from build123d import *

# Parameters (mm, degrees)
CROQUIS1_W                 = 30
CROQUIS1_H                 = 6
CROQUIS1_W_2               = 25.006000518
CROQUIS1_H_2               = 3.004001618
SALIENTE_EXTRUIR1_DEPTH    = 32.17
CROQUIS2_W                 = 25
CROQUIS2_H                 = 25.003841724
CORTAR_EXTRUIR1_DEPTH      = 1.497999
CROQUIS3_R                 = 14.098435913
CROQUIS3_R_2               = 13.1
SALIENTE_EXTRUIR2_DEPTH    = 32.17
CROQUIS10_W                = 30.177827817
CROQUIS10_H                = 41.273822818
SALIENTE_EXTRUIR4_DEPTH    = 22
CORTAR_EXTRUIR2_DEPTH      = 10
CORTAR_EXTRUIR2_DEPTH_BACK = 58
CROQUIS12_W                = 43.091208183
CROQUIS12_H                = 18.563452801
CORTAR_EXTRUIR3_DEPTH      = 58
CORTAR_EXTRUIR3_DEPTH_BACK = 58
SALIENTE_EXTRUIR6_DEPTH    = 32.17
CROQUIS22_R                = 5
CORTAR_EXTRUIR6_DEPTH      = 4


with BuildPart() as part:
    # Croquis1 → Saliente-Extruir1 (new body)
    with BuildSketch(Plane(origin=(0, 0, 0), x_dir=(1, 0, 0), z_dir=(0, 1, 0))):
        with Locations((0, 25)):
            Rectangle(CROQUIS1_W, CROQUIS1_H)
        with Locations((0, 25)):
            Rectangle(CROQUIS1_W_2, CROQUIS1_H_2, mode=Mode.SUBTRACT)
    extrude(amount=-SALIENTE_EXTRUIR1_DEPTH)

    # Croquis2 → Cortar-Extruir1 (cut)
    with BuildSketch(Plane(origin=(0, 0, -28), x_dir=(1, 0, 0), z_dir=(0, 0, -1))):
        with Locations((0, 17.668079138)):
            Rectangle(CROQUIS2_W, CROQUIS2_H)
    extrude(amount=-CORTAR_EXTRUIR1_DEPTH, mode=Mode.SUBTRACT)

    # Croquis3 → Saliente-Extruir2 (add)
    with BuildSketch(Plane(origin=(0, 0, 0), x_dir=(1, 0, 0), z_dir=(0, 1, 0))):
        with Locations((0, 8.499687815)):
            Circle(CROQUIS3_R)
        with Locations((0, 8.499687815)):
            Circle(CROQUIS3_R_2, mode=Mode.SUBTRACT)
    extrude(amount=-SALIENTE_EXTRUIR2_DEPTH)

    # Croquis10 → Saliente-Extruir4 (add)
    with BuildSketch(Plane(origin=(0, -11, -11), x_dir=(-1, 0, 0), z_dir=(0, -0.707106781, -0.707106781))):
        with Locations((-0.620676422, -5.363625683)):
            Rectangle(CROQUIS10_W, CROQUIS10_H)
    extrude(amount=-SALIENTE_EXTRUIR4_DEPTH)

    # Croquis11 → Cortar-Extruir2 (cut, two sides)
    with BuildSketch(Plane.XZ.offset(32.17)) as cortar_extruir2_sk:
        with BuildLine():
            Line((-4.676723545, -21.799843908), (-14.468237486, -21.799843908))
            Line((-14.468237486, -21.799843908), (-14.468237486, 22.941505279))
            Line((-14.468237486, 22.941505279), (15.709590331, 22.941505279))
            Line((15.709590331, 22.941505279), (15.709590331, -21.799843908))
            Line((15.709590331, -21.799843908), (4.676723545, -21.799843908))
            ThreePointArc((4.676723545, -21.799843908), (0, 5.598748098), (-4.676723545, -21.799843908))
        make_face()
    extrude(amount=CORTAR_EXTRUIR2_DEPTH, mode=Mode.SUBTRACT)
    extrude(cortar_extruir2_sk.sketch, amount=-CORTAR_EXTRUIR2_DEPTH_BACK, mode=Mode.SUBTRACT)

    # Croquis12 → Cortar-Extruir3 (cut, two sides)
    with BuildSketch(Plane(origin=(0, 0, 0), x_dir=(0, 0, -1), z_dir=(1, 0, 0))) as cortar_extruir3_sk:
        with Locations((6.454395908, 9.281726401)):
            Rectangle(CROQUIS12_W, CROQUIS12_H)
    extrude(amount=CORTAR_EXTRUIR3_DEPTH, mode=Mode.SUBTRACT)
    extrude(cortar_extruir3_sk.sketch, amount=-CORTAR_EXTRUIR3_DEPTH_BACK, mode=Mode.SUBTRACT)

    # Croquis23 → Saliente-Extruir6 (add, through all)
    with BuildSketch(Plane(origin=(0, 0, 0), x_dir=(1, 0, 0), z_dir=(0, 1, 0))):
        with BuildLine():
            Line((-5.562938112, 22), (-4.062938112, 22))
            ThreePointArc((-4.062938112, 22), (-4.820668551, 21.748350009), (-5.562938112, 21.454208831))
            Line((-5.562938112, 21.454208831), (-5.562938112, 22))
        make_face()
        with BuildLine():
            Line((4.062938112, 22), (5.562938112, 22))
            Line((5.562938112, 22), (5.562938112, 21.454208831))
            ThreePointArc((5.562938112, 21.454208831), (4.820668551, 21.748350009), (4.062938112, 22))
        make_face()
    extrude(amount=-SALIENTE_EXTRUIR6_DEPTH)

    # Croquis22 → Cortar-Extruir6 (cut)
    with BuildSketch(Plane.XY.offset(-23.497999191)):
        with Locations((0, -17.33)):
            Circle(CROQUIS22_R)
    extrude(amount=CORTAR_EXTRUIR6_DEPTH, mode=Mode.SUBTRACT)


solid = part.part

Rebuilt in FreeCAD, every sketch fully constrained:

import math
import FreeCAD as App
import Part
import Sketcher
from FreeCAD import Vector

doc = App.newDocument("Part")
body = doc.addObject("PartDesign::Body", "Body")

sketch1 = body.newObject("Sketcher::SketchObject", "Sketch")
sketch1.AttachmentSupport = (doc.getObject("XZ_Plane"), [""])
sketch1.MapMode = "FlatFace"
sketch1.addGeometry(Part.LineSegment(Vector(-15, -28, 0), Vector(-15, -22, 0)), False)
sketch1.addGeometry(Part.LineSegment(Vector(-15, -22, 0), Vector(15, -22, 0)), False)
sketch1.addGeometry(Part.LineSegment(Vector(15, -22, 0), Vector(15, -28, 0)), False)
sketch1.addGeometry(Part.LineSegment(Vector(15, -28, 0), Vector(-15, -28, 0)), False)
sketch1.addGeometry(Part.LineSegment(Vector(12.5, -23.5, 0), Vector(-12.5, -23.5, 0)), False)
sketch1.addGeometry(Part.LineSegment(Vector(-12.5, -23.5, 0), Vector(-12.5, -26.5, 0)), False)
sketch1.addGeometry(Part.LineSegment(Vector(-12.5, -26.5, 0), Vector(12.5, -26.5, 0)), False)
sketch1.addGeometry(Part.LineSegment(Vector(12.5, -26.5, 0), Vector(12.5, -23.5, 0)), False)
sketch1.addConstraint(Sketcher.Constraint("Coincident", 0, 2, 1, 1))
sketch1.addConstraint(Sketcher.Constraint("Coincident", 1, 2, 2, 1))
sketch1.addConstraint(Sketcher.Constraint("Coincident", 2, 2, 3, 1))
sketch1.addConstraint(Sketcher.Constraint("Coincident", 3, 2, 0, 1))
sketch1.addConstraint(Sketcher.Constraint("Coincident", 4, 2, 5, 1))
sketch1.addConstraint(Sketcher.Constraint("Coincident", 5, 2, 6, 1))
sketch1.addConstraint(Sketcher.Constraint("Coincident", 6, 2, 7, 1))
sketch1.addConstraint(Sketcher.Constraint("Coincident", 7, 2, 4, 1))
sketch1.addConstraint(Sketcher.Constraint("Vertical", 0))
sketch1.addConstraint(Sketcher.Constraint("Horizontal", 1))
sketch1.addConstraint(Sketcher.Constraint("Vertical", 2))
sketch1.addConstraint(Sketcher.Constraint("Horizontal", 3))
sketch1.addConstraint(Sketcher.Constraint("Horizontal", 4))
sketch1.addConstraint(Sketcher.Constraint("Vertical", 5))
sketch1.addConstraint(Sketcher.Constraint("Horizontal", 6))
sketch1.addConstraint(Sketcher.Constraint("Vertical", 7))
sketch1.addConstraint(Sketcher.Constraint("DistanceX", 1, 1, 1, 2, 30.0))
sketch1.addConstraint(Sketcher.Constraint("DistanceY", 0, 1, 0, 2, 6.0))
sketch1.addConstraint(Sketcher.Constraint("DistanceX", 0, 2, -1, 1, 15.0))
sketch1.addConstraint(Sketcher.Constraint("DistanceY", 0, 2, -1, 1, 22.0))
sketch1.addConstraint(Sketcher.Constraint("DistanceX", 4, 2, 4, 1, 25.006001))
sketch1.addConstraint(Sketcher.Constraint("DistanceY", 5, 2, 5, 1, 3.004002))
sketch1.addConstraint(Sketcher.Constraint("DistanceX", 4, 2, -1, 1, 12.503))
sketch1.addConstraint(Sketcher.Constraint("DistanceY", 4, 2, -1, 1, 23.497999))
pad1 = body.newObject("PartDesign::Pad", "Pad")
pad1.Profile = sketch1
pad1.Length = 32.17

sketch2 = body.newObject("Sketcher::SketchObject", "Sketch001")
sketch2.AttachmentSupport = (doc.getObject("XY_Plane"), [""])
sketch2.MapMode = "FlatFace"
sketch2.AttachmentOffset = App.Placement(Vector(0, 0, -28), App.Rotation())
sketch2.addGeometry(Part.LineSegment(Vector(-12, -30, 0), Vector(-12, -5, 0)), False)
sketch2.addGeometry(Part.LineSegment(Vector(-12, -5, 0), Vector(12, -5, 0)), False)
sketch2.addGeometry(Part.LineSegment(Vector(12, -5, 0), Vector(12, -30, 0)), False)
sketch2.addGeometry(Part.LineSegment(Vector(12, -30, 0), Vector(-12, -30, 0)), False)
sketch2.addConstraint(Sketcher.Constraint("Coincident", 0, 2, 1, 1))
sketch2.addConstraint(Sketcher.Constraint("Coincident", 1, 2, 2, 1))
sketch2.addConstraint(Sketcher.Constraint("Coincident", 2, 2, 3, 1))
sketch2.addConstraint(Sketcher.Constraint("Coincident", 3, 2, 0, 1))
sketch2.addConstraint(Sketcher.Constraint("Vertical", 0))
sketch2.addConstraint(Sketcher.Constraint("Horizontal", 1))
sketch2.addConstraint(Sketcher.Constraint("Vertical", 2))
sketch2.addConstraint(Sketcher.Constraint("Horizontal", 3))
sketch2.addConstraint(Sketcher.Constraint("DistanceX", 1, 1, 1, 2, 25.0))
sketch2.addConstraint(Sketcher.Constraint("DistanceX", 0, 2, -1, 1, 12.5))
sketch2.addConstraint(Sketcher.Constraint("DistanceY", 2, 2, -1, 1, 30.17))
sketch2.addConstraint(Sketcher.Constraint("DistanceY", 0, 1, 0, 2, 25.003842))
pocket1 = body.newObject("PartDesign::Pocket", "Pocket")
pocket1.Profile = sketch2
pocket1.Length = 1.497999
pocket1.Reversed = True

sketch3 = body.newObject("Sketcher::SketchObject", "Sketch002")
sketch3.AttachmentSupport = (doc.getObject("XZ_Plane"), [""])
sketch3.MapMode = "FlatFace"
sketch3.addGeometry(Part.Circle(Vector(0, -8, 0), Vector(0, 0, 1), 14), False)
sketch3.addGeometry(Part.Circle(Vector(0, -8, 0), Vector(0, 0, 1), 13), False)
sketch3.addConstraint(Sketcher.Constraint("Coincident", 1, 3, 0, 3))
sketch3.addConstraint(Sketcher.Constraint("PointOnObject", 0, 3, -2))
sketch3.addConstraint(Sketcher.Constraint("Diameter", 1, 26.2))
sketch3.addConstraint(Sketcher.Constraint("Diameter", 0, 28.196872))
sketch3.addConstraint(Sketcher.Constraint("DistanceY", 0, 3, -1, 1, 8.499688))
pad2 = body.newObject("PartDesign::Pad", "Pad001")
pad2.Profile = sketch3
pad2.Length = 32.17

sketch4 = body.newObject("Sketcher::SketchObject", "Sketch003")
sketch4.Placement = App.Placement(Vector(0, -11, -11), App.Rotation(Vector(-1, 0, 0), Vector(0, 0.707106781, -0.707106781), Vector(0, -0.707106781, -0.707106781), "ZXY"))
sketch4.addGeometry(Part.LineSegment(Vector(-16, 15, 0), Vector(-16, -26, 0)), False)
sketch4.addGeometry(Part.LineSegment(Vector(-16, -26, 0), Vector(14, -26, 0)), False)
sketch4.addGeometry(Part.LineSegment(Vector(14, -26, 0), Vector(14, 15, 0)), False)
sketch4.addGeometry(Part.LineSegment(Vector(14, 15, 0), Vector(-16, 15, 0)), False)
sketch4.addConstraint(Sketcher.Constraint("Coincident", 0, 2, 1, 1))
sketch4.addConstraint(Sketcher.Constraint("Coincident", 1, 2, 2, 1))
sketch4.addConstraint(Sketcher.Constraint("Coincident", 2, 2, 3, 1))
sketch4.addConstraint(Sketcher.Constraint("Coincident", 3, 2, 0, 1))
sketch4.addConstraint(Sketcher.Constraint("Vertical", 0))
sketch4.addConstraint(Sketcher.Constraint("Horizontal", 1))
sketch4.addConstraint(Sketcher.Constraint("Vertical", 2))
sketch4.addConstraint(Sketcher.Constraint("Horizontal", 3))
sketch4.addConstraint(Sketcher.Constraint("DistanceX", 1, 1, 1, 2, 30.177828))
sketch4.addConstraint(Sketcher.Constraint("DistanceY", 0, 2, 0, 1, 41.273823))
sketch4.addConstraint(Sketcher.Constraint("DistanceX", 0, 2, -1, 1, 15.70959))
sketch4.addConstraint(Sketcher.Constraint("DistanceY", 0, 2, -1, 1, 26.000537))
pad3 = body.newObject("PartDesign::Pad", "Pad002")
pad3.Profile = sketch4
pad3.Length = 22
pad3.Reversed = True

sketch5 = body.newObject("Sketcher::SketchObject", "Sketch004")
sketch5.AttachmentSupport = (doc.getObject("XZ_Plane"), [""])
sketch5.MapMode = "FlatFace"
sketch5.AttachmentOffset = App.Placement(Vector(0, 0, 32.17), App.Rotation())
sketch5.addGeometry(Part.LineSegment(Vector(-14, -22, 0), Vector(-5, -22, 0)), False)
sketch5.addGeometry(Part.ArcOfCircle(Part.Circle(Vector(0, -8, 0), Vector(0, 0, 1), 14), math.radians(-71), math.radians(251)), False)
sketch5.addGeometry(Part.LineSegment(Vector(5, -22, 0), Vector(16, -22, 0)), False)
sketch5.addGeometry(Part.LineSegment(Vector(16, -22, 0), Vector(16, 23, 0)), False)
sketch5.addGeometry(Part.LineSegment(Vector(16, 23, 0), Vector(-14, 23, 0)), False)
sketch5.addGeometry(Part.LineSegment(Vector(-14, 23, 0), Vector(-14, -22, 0)), False)
sketch5.addConstraint(Sketcher.Constraint("Coincident", 0, 2, 1, 2))
sketch5.addConstraint(Sketcher.Constraint("Coincident", 1, 1, 2, 1))
sketch5.addConstraint(Sketcher.Constraint("Coincident", 2, 2, 3, 1))
sketch5.addConstraint(Sketcher.Constraint("Coincident", 3, 2, 4, 1))
sketch5.addConstraint(Sketcher.Constraint("Coincident", 4, 2, 5, 1))
sketch5.addConstraint(Sketcher.Constraint("Coincident", 5, 2, 0, 1))
sketch5.addConstraint(Sketcher.Constraint("Horizontal", 0))
sketch5.addConstraint(Sketcher.Constraint("Horizontal", 2))
sketch5.addConstraint(Sketcher.Constraint("Vertical", 3))
sketch5.addConstraint(Sketcher.Constraint("Horizontal", 4))
sketch5.addConstraint(Sketcher.Constraint("Vertical", 5))
sketch5.addConstraint(Sketcher.Constraint("Symmetric", 0, 2, 1, 1, -2))
sketch5.addConstraint(Sketcher.Constraint("Radius", 1, 14.098436))
sketch5.addConstraint(Sketcher.Constraint("DistanceY", 3, 1, 3, 2, 44.741349))
sketch5.addConstraint(Sketcher.Constraint("DistanceX", 0, 1, 0, 2, 9.791514))
sketch5.addConstraint(Sketcher.Constraint("DistanceX", 2, 1, 2, 2, 11.032867))
sketch5.addConstraint(Sketcher.Constraint("DistanceX", 4, 2, 4, 1, 30.177828))
sketch5.addConstraint(Sketcher.Constraint("DistanceY", 1, 3, -1, 1, 8.499688))
pocket2 = body.newObject("PartDesign::Pocket", "Pocket001")
pocket2.Profile = sketch5
pocket2.Type = "ThroughAll"
pocket2.Midplane = True

sketch6 = body.newObject("Sketcher::SketchObject", "Sketch005")
sketch6.AttachmentSupport = (doc.getObject("YZ_Plane"), [""])
sketch6.MapMode = "FlatFace"
sketch6.addGeometry(Part.LineSegment(Vector(19, 15, 0), Vector(0, 15, 0)), False)
sketch6.addGeometry(Part.LineSegment(Vector(0, 15, 0), Vector(0, -28, 0)), False)
sketch6.addGeometry(Part.LineSegment(Vector(0, -28, 0), Vector(19, -28, 0)), False)
sketch6.addGeometry(Part.LineSegment(Vector(19, -28, 0), Vector(19, 15, 0)), False)
sketch6.addConstraint(Sketcher.Constraint("Coincident", 0, 2, 1, 1))
sketch6.addConstraint(Sketcher.Constraint("Coincident", 1, 2, 2, 1))
sketch6.addConstraint(Sketcher.Constraint("Coincident", 2, 2, 3, 1))
sketch6.addConstraint(Sketcher.Constraint("Coincident", 3, 2, 0, 1))
sketch6.addConstraint(Sketcher.Constraint("Horizontal", 0))
sketch6.addConstraint(Sketcher.Constraint("Vertical", 1))
sketch6.addConstraint(Sketcher.Constraint("Horizontal", 2))
sketch6.addConstraint(Sketcher.Constraint("Vertical", 3))
sketch6.addConstraint(Sketcher.Constraint("PointOnObject", 0, 2, -2))
sketch6.addConstraint(Sketcher.Constraint("DistanceY", 1, 2, -1, 1, 28.0))
sketch6.addConstraint(Sketcher.Constraint("DistanceY", 1, 2, 1, 1, 43.091208))
sketch6.addConstraint(Sketcher.Constraint("DistanceX", 0, 2, 0, 1, 18.563453))
pocket3 = body.newObject("PartDesign::Pocket", "Pocket002")
pocket3.Profile = sketch6
pocket3.Type = "ThroughAll"
pocket3.Midplane = True

sketch7 = body.newObject("Sketcher::SketchObject", "Sketch006")
sketch7.AttachmentSupport = (doc.getObject("XZ_Plane"), [""])
sketch7.MapMode = "FlatFace"
sketch7.addGeometry(Part.LineSegment(Vector(-4.1, -22, 0), Vector(-5.6, -22, 0)), False)
sketch7.addGeometry(Part.LineSegment(Vector(-5.6, -22, 0), Vector(-5.6, -21.5, 0)), False)
sketch7.addGeometry(Part.ArcOfCircle(Part.Circle(Vector(0, -8.5, 0), Vector(0, 0, 1), 14.1), math.radians(-113.24), math.radians(-106.75)), False)
sketch7.addGeometry(Part.LineSegment(Vector(5.6, -22, 0), Vector(4.1, -22, 0)), False)
sketch7.addGeometry(Part.ArcOfCircle(Part.Circle(Vector(0, -8.5, 0), Vector(0, 0, 1), 14.1), math.radians(-73.25), math.radians(-66.76)), False)
sketch7.addGeometry(Part.LineSegment(Vector(5.6, -21.5, 0), Vector(5.6, -22, 0)), False)
sketch7.addConstraint(Sketcher.Constraint("Coincident", 0, 2, 1, 1))
sketch7.addConstraint(Sketcher.Constraint("Coincident", 1, 2, 2, 1))
sketch7.addConstraint(Sketcher.Constraint("Coincident", 2, 2, 0, 1))
sketch7.addConstraint(Sketcher.Constraint("Coincident", 3, 2, 4, 1))
sketch7.addConstraint(Sketcher.Constraint("Coincident", 4, 2, 5, 1))
sketch7.addConstraint(Sketcher.Constraint("Coincident", 5, 2, 3, 1))
sketch7.addConstraint(Sketcher.Constraint("Horizontal", 0))
sketch7.addConstraint(Sketcher.Constraint("Vertical", 1))
sketch7.addConstraint(Sketcher.Constraint("Horizontal", 3))
sketch7.addConstraint(Sketcher.Constraint("Vertical", 5))
sketch7.addConstraint(Sketcher.Constraint("Coincident", 4, 3, 2, 3))
sketch7.addConstraint(Sketcher.Constraint("Equal", 2, 4))
sketch7.addConstraint(Sketcher.Constraint("Symmetric", 2, 2, 3, 2, -2))
sketch7.addConstraint(Sketcher.Constraint("Horizontal", 1, 2, 4, 2))
sketch7.addConstraint(Sketcher.Constraint("DistanceX", 0, 2, 0, 1, 1.5))
sketch7.addConstraint(Sketcher.Constraint("DistanceY", 0, 2, -1, 1, 22.0))
sketch7.addConstraint(Sketcher.Constraint("Radius", 2, 14.098436))
sketch7.addConstraint(Sketcher.Constraint("DistanceY", 1, 1, 1, 2, 0.545791))
pad4 = body.newObject("PartDesign::Pad", "Pad003")
pad4.Profile = sketch7
pad4.Type = "UpToLast"

sketch8 = body.newObject("Sketcher::SketchObject", "Sketch007")
sketch8.AttachmentSupport = (doc.getObject("XY_Plane"), [""])
sketch8.MapMode = "FlatFace"
sketch8.AttachmentOffset = App.Placement(Vector(0, 0, -23.497999), App.Rotation())
sketch8.addGeometry(Part.Circle(Vector(0, -17, 0), Vector(0, 0, 1), 5), False)
sketch8.addConstraint(Sketcher.Constraint("PointOnObject", 0, 3, -2))
sketch8.addConstraint(Sketcher.Constraint("Diameter", 0, 10.0))
sketch8.addConstraint(Sketcher.Constraint("DistanceY", 0, 3, -1, 1, 17.33))
pocket4 = body.newObject("PartDesign::Pocket", "Pocket003")
pocket4.Profile = sketch8
pocket4.Length = 4
pocket4.Reversed = True

doc.recompute()
